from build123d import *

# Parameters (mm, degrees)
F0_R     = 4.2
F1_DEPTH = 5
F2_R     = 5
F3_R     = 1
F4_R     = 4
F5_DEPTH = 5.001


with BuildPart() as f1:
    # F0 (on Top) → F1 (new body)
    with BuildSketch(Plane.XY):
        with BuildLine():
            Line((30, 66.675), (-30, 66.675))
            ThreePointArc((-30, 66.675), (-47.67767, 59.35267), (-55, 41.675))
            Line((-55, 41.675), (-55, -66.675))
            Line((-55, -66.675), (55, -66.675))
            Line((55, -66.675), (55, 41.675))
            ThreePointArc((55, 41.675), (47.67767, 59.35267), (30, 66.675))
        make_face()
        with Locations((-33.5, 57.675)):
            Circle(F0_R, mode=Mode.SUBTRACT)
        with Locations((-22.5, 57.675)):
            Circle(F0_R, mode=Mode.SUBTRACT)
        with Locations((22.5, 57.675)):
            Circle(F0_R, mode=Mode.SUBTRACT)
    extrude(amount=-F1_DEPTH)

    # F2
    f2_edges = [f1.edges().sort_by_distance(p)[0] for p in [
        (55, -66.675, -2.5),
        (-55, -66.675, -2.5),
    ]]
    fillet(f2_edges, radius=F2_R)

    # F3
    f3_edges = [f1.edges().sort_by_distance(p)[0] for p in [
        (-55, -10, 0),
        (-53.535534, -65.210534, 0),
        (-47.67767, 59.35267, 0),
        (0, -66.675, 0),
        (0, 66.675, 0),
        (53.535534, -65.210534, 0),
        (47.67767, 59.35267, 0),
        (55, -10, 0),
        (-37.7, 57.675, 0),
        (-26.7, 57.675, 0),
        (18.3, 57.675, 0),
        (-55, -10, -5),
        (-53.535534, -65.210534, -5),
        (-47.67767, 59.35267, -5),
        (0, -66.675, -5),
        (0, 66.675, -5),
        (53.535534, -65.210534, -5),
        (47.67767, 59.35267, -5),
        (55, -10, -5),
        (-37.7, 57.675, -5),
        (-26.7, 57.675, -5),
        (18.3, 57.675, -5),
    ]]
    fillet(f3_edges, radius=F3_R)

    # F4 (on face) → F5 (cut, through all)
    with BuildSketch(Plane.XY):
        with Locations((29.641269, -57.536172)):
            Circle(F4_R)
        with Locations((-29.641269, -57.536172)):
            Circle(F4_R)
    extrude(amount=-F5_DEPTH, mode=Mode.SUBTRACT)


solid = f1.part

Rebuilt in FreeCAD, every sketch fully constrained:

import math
import FreeCAD as App
import Part
import Sketcher
Q = App.Units.Quantity


def edges_at(feature, points):
    """Names of the edges that pass closest to the given points."""
    edges = feature.Shape.Edges
    near = lambda p: min(range(len(edges)), key=lambda i: edges[i].distToShape(Part.Vertex(*p))[0])
    return sorted({f"Edge{near(p) + 1}" for p in points})

doc = App.newDocument("Part")
body = doc.addObject("PartDesign::Body", "Body")

# Sketch on XY plane
sketch1 = body.newObject("Sketcher::SketchObject", "Sketch")
sketch1.AttachmentSupport = (doc.getObject("XY_Plane"), [""])
sketch1.MapMode = "FlatFace"
sketch1.addGeometry([
    Part.LineSegment(App.Vector(30, 66.7, 0), App.Vector(-30, 66.7, 0)),  # 0
    Part.ArcOfCircle(Part.Circle(App.Vector(-30, 41.7, 0), App.Vector(0, 0, 1), 25), math.radians(90), math.radians(180)),  # 1
    Part.LineSegment(App.Vector(-55, 41.7, 0), App.Vector(-55, -66.7, 0)),  # 2
    Part.LineSegment(App.Vector(-55, -66.7, 0), App.Vector(55, -66.7, 0)),  # 3
    Part.LineSegment(App.Vector(55, -66.7, 0), App.Vector(55, 41.7, 0)),  # 4
    Part.ArcOfCircle(Part.Circle(App.Vector(30, 41.7, 0), App.Vector(0, 0, 1), 25), math.radians(0), math.radians(90)),  # 5
    Part.Circle(App.Vector(-33.5, 57.7, 0), App.Vector(0, 0, 1), 4.2),  # 6
    Part.Circle(App.Vector(-22.5, 57.7, 0), App.Vector(0, 0, 1), 4.2),  # 7
    Part.Circle(App.Vector(22.5, 57.7, 0), App.Vector(0, 0, 1), 4.2),  # 8
], False)
sketch1.addConstraint([
    Sketcher.Constraint("Tangent", 0, 2, 1, 1),
    Sketcher.Constraint("Tangent", 1, 2, 2, 1),
    Sketcher.Constraint("Coincident", 2, 2, 3, 1),
    Sketcher.Constraint("Coincident", 3, 2, 4, 1),
    Sketcher.Constraint("Tangent", 4, 2, 5, 1),
    Sketcher.Constraint("Tangent", 5, 2, 0, 1),
    Sketcher.Constraint("Horizontal", 0),
    Sketcher.Constraint("Vertical", 2),
    Sketcher.Constraint("Horizontal", 3),
    Sketcher.Constraint("Vertical", 4),
    Sketcher.Constraint("Equal", 1, 5),
    Sketcher.Constraint("Equal", 6, 7),
    Sketcher.Constraint("Equal", 7, 8),
    Sketcher.Constraint("Symmetric", 7, 3, 8, 3, -2),
    Sketcher.Constraint("Horizontal", 6, 3, 7, 3),
    Sketcher.Constraint("Radius", 1, Q("24.999998 mm")),
    Sketcher.Constraint("Diameter", 6, Q("8.4 mm")),
    Sketcher.Constraint("DistanceX", 0, 2, 0, 1, Q("60 mm")),
    Sketcher.Constraint("DistanceX", 1, 3, -1, 1, Q("30.000002 mm")),
    Sketcher.Constraint("DistanceY", 1, 3, 6, 3, Q("15.999998 mm")),
    Sketcher.Constraint("DistanceX", 6, 3, 7, 3, Q("11 mm")),
    Sketcher.Constraint("DistanceX", 7, 3, 8, 3, Q("45 mm")),
    Sketcher.Constraint("DistanceY", 2, 2, 2, 1, Q("108.35 mm")),
    Sketcher.Constraint("DistanceY", -1, 1, 1, 3, Q("41.675002 mm")),
])
pad1 = body.newObject("PartDesign::Pad", "Pad")
pad1.Profile = sketch1
pad1.Length = 5
pad1.Reversed = True
doc.recompute()

fillet = body.newObject("PartDesign::Fillet", "Fillet")
fillet.Base = (pad1, edges_at(pad1, [(55, -66.675, -2.5), (-55, -66.675, -2.5)]))
fillet.Radius = 5
doc.recompute()

fillet2 = body.newObject("PartDesign::Fillet", "Fillet001")
fillet2.Base = (fillet, edges_at(fillet, [
    (-55, -10, 0),
    (-53.536, -65.211, 0),
    (-47.678, 59.353, 0),
    (0, -66.675, 0),
    (0, 66.675, 0),
    (53.536, -65.211, 0),
    (47.678, 59.353, 0),
    (55, -10, 0),
    (-37.7, 57.675, 0),
    (-26.7, 57.675, 0),
    (18.3, 57.675, 0),
    (-55, -10, -5),
    (-53.536, -65.211, -5),
    (-47.678, 59.353, -5),
    (0, -66.675, -5),
    (0, 66.675, -5),
    (53.536, -65.211, -5),
    (47.678, 59.353, -5),
    (55, -10, -5),
    (-37.7, 57.675, -5),
    (-26.7, 57.675, -5),
    (18.3, 57.675, -5),
]))
fillet2.Radius = 1

# Sketch on XY plane
sketch2 = body.newObject("Sketcher::SketchObject", "Sketch001")
sketch2.AttachmentSupport = (doc.getObject("XY_Plane"), [""])
sketch2.MapMode = "FlatFace"
sketch2.addGeometry([
    Part.Circle(App.Vector(29.6, -57.5, 0), App.Vector(0, 0, 1), 4),
    Part.Circle(App.Vector(-29.6, -57.5, 0), App.Vector(0, 0, 1), 4),
], False)
sketch2.addConstraint([
    Sketcher.Constraint("Equal", 0, 1),
    Sketcher.Constraint("Symmetric", 0, 3, 1, 3, -2),
    Sketcher.Constraint("Diameter", 0, Q("8 mm")),
    Sketcher.Constraint("DistanceX", -1, 1, 0, 3, Q("29.641269 mm")),
    Sketcher.Constraint("DistanceY", 0, 3, -1, 1, Q("57.536172 mm")),
])
pocket1 = body.newObject("PartDesign::Pocket", "Pocket")
pocket1.Profile = sketch2
pocket1.Type = "ThroughAll"

doc.recompute()
